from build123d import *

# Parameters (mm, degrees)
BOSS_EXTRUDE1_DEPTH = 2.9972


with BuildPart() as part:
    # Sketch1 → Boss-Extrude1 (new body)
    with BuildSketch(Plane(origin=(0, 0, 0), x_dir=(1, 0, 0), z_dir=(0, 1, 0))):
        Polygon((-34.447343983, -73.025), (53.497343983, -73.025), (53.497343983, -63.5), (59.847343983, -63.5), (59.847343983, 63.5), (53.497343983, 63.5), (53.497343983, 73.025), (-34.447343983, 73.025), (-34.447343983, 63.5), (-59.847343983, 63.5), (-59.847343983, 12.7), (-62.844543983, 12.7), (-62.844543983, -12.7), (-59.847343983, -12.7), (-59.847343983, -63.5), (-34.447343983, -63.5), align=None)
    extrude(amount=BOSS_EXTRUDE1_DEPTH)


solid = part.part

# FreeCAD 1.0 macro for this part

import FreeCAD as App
import Part
import Sketcher
from FreeCAD import Vector
Q = App.Units.Quantity

doc = App.newDocument("Part")
body = doc.addObject("PartDesign::Body", "Body")

# Sketch on XZ plane
sketch1 = body.newObject("Sketcher::SketchObject", "Sketch")
sketch1.AttachmentSupport = (doc.getObject("XZ_Plane"), [""])
sketch1.MapMode = "FlatFace"
sketch1.addGeometry([
    Part.LineSegment(Vector(-34.4, 73, 0), Vector(53.5, 73, 0)),  # 0
    Part.LineSegment(Vector(53.5, 73, 0), Vector(53.5, 63.5, 0)),  # 1
    Part.LineSegment(Vector(53.5, 63.5, 0), Vector(59.8, 63.5, 0)),  # 2
    Part.LineSegment(Vector(59.8, 63.5, 0), Vector(59.8, -63.5, 0)),  # 3
    Part.LineSegment(Vector(59.8, -63.5, 0), Vector(53.5, -63.5, 0)),  # 4
    Part.LineSegment(Vector(53.5, -63.5, 0), Vector(53.5, -73, 0)),  # 5
    Part.LineSegment(Vector(53.5, -73, 0), Vector(-34.4, -73, 0)),  # 6
    Part.LineSegment(Vector(-34.4, -73, 0), Vector(-34.4, -63.5, 0)),  # 7
    Part.LineSegment(Vector(-34.4, -63.5, 0), Vector(-59.8, -63.5, 0)),  # 8
    Part.LineSegment(Vector(-59.8, -63.5, 0), Vector(-59.8, -12.7, 0)),  # 9
    Part.LineSegment(Vector(-59.8, -12.7, 0), Vector(-62.8, -12.7, 0)),  # 10
    Part.LineSegment(Vector(-62.8, -12.7, 0), Vector(-62.8, 12.7, 0)),  # 11
    Part.LineSegment(Vector(-62.8, 12.7, 0), Vector(-59.8, 12.7, 0)),  # 12
    Part.LineSegment(Vector(-59.8, 12.7, 0), Vector(-59.8, 63.5, 0)),  # 13
    Part.LineSegment(Vector(-59.8, 63.5, 0), Vector(-34.4, 63.5, 0)),  # 14
    Part.LineSegment(Vector(-34.4, 63.5, 0), Vector(-34.4, 73, 0)),  # 15
], False)
sketch1.addConstraint([
    Sketcher.Constraint("Coincident", 0, 2, 1, 1),
    Sketcher.Constraint("Coincident", 1, 2, 2, 1),
    Sketcher.Constraint("Coincident", 2, 2, 3, 1),
    Sketcher.Constraint("Coincident", 3, 2, 4, 1),
    Sketcher.Constraint("Coincident", 4, 2, 5, 1),
    Sketcher.Constraint("Coincident", 5, 2, 6, 1),
    Sketcher.Constraint("Coincident", 6, 2, 7, 1),
    Sketcher.Constraint("Coincident", 7, 2, 8, 1),
    Sketcher.Constraint("Coincident", 8, 2, 9, 1),
    Sketcher.Constraint("Coincident", 9, 2, 10, 1),
    Sketcher.Constraint("Coincident", 10, 2, 11, 1),
    Sketcher.Constraint("Coincident", 11, 2, 12, 1),
    Sketcher.Constraint("Coincident", 12, 2, 13, 1),
    Sketcher.Constraint("Coincident", 13, 2, 14, 1),
    Sketcher.Constraint("Coincident", 14, 2, 15, 1),
    Sketcher.Constraint("Coincident", 15, 2, 0, 1),
    Sketcher.Constraint("Horizontal", 0),
    Sketcher.Constraint("Vertical", 1),
    Sketcher.Constraint("Horizontal", 2),
    Sketcher.Constraint("Vertical", 3),
    Sketcher.Constraint("Horizontal", 4),
    Sketcher.Constraint("Vertical", 5),
    Sketcher.Constraint("Horizontal", 6),
    Sketcher.Constraint("Vertical", 7),
    Sketcher.Constraint("Horizontal", 8),
    Sketcher.Constraint("Vertical", 9),
    Sketcher.Constraint("Horizontal", 10),
    Sketcher.Constraint("Vertical", 11),
    Sketcher.Constraint("Horizontal", 12),
    Sketcher.Constraint("Vertical", 13),
    Sketcher.Constraint("Horizontal", 14),
    Sketcher.Constraint("Vertical", 15),
    Sketcher.Constraint("Symmetric", 2, 2, 8, 2, -1, 1),
    Sketcher.Constraint("Symmetric", 3, 2, 13, 2, -1, 1),
    Sketcher.Constraint("Symmetric", 1, 2, 4, 2, -1),
    Sketcher.Constraint("Symmetric", 6, 2, 15, 2, -1),
    Sketcher.Constraint("Equal", 14, 11),
    Sketcher.Constraint("Equal", 9, 13),
    Sketcher.Constraint("DistanceX", 8, 2, 8, 1, Q("1 in")),
    Sketcher.Constraint("DistanceY", 3, 2, 3, 1, Q("5 in")),
    Sketcher.Constraint("DistanceX", 2, 1, 2, 2, Q("0.25 in")),
    Sketcher.Constraint("DistanceX", 10, 2, 10, 1, Q("0.118 in")),
    Sketcher.Constraint("DistanceY", 1, 2, 1, 1, Q("0.375 in")),
    Sketcher.Constraint("DistanceX", 0, 1, 0, 2, 87.944688),
])
pad1 = body.newObject("PartDesign::Pad", "Pad")
pad1.Profile = sketch1
pad1.Length = Q("0.118 in")
pad1.Reversed = True

doc.recompute()
